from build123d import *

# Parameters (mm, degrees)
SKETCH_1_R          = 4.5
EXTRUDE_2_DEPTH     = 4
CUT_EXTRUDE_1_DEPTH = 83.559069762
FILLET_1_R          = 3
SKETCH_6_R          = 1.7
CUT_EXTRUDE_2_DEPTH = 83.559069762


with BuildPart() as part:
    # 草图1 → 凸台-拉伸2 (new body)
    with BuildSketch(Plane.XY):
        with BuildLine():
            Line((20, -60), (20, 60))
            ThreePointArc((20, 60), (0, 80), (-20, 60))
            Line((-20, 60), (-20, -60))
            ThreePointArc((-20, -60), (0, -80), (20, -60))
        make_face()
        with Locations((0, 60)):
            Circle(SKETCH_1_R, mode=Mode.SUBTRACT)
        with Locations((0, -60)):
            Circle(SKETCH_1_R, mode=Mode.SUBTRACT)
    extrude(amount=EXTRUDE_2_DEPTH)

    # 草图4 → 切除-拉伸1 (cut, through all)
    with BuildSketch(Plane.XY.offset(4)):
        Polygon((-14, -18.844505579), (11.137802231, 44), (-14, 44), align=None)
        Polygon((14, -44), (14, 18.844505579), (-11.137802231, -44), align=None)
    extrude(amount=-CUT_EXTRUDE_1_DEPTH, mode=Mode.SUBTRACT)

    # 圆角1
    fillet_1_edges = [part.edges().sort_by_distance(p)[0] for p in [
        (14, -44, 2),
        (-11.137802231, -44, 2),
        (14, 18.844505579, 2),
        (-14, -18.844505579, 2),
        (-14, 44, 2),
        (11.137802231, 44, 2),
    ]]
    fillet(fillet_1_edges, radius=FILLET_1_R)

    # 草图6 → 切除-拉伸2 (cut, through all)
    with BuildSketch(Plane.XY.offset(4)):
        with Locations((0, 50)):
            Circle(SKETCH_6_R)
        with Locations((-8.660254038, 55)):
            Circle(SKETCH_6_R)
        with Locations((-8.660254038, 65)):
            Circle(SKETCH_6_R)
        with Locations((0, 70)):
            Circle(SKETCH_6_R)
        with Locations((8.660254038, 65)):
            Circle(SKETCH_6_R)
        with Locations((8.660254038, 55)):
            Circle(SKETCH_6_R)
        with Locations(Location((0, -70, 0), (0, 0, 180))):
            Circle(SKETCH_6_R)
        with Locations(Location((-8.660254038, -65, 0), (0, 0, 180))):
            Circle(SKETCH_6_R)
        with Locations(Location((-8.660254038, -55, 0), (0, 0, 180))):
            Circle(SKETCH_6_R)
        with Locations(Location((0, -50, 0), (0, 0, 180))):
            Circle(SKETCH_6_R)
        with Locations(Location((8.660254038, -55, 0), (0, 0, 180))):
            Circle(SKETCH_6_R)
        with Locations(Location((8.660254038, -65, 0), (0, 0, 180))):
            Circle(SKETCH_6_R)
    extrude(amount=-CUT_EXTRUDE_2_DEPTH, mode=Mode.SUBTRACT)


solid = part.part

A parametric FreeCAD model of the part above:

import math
import FreeCAD as App
import Part
import Sketcher

V = App.Vector


def edges_at(feature, points):
    """Names of the edges that pass closest to the given points."""
    edges = feature.Shape.Edges
    near = lambda p: min(range(len(edges)), key=lambda i: edges[i].distToShape(Part.Vertex(*p))[0])
    return sorted({f"Edge{near(p) + 1}" for p in points})


def add_polygon(sketch, points):
    """Adds a closed chain of lines whose ends are joined by coincident constraints."""
    first, n = sketch.GeometryCount, len(points)
    for a, b in zip(points, points[1:] + points[:1]):
        sketch.addGeometry(Part.LineSegment(App.Vector(*a, 0), App.Vector(*b, 0)), False)
    for i in range(n):
        sketch.addConstraint(Sketcher.Constraint("Coincident", first + i, 2, first + (i + 1) % n, 1))

doc = App.newDocument("Part")
body = doc.addObject("PartDesign::Body", "Body")

# Sketch on XY plane
sketch1 = doc.addObject("Sketcher::SketchObject", "Sketch")
body.addObject(sketch1)
sketch1.AttachmentSupport = (doc.XY_Plane, [""])
sketch1.MapMode = "FlatFace"
sketch1.addGeometry([
    Part.LineSegment(V(20, -60, 0), V(20, 60, 0)),  # 0
    Part.ArcOfCircle(Part.Circle(V(0, 60, 0), V(0, 0, 1), 20), math.radians(0), math.radians(180)),  # 1
    Part.LineSegment(V(-20, 60, 0), V(-20, -60, 0)),  # 2
    Part.ArcOfCircle(Part.Circle(V(0, -60, 0), V(0, 0, 1), 20), math.radians(180), math.radians(360)),  # 3
    Part.Circle(V(0, -60, 0), V(0, 0, 1), 4.5),  # 4
    Part.Circle(V(0, 60, 0), V(0, 0, 1), 4.5),  # 5
], False)
sketch1.addConstraint([
    Sketcher.Constraint("Tangent", 0, 2, 1, 1),
    Sketcher.Constraint("Tangent", 1, 2, 2, 1),
    Sketcher.Constraint("Tangent", 2, 2, 3, 1),
    Sketcher.Constraint("Tangent", 3, 2, 0, 1),
    Sketcher.Constraint("Vertical", 0),
    Sketcher.Constraint("Vertical", 2),
    Sketcher.Constraint("Coincident", 4, 3, 3, 3),
    Sketcher.Constraint("Coincident", 5, 3, 1, 3),
    Sketcher.Constraint("Equal", 4, 5),
    Sketcher.Constraint("Symmetric", 1, 3, 3, 3, -1, 1),
    Sketcher.Constraint("Diameter", 4, 9.0),
    Sketcher.Constraint("Radius", 1, 20.0),
    Sketcher.Constraint("DistanceY", 0, 1, 0, 2, 120.0),
])
pad1 = doc.addObject("PartDesign::Pad", "Pad")
body.addObject(pad1)
pad1.Profile = sketch1
pad1.Length = 4

# Sketch on XY plane
sketch2 = doc.addObject("Sketcher::SketchObject", "Sketch001")
body.addObject(sketch2)
sketch2.AttachmentSupport = (doc.XY_Plane, [""])
sketch2.MapMode = "FlatFace"
sketch2.AttachmentOffset = App.Placement(V(0, 0, 4), App.Rotation())
add_polygon(sketch2, [(-14, -18.844506), (11.137802, 44), (-14, 44)])  # lines 0-2
add_polygon(sketch2, [(14, -44), (14, 18.844506), (-11.137802, -44)])  # lines 3-5
sketch2.addConstraint([
    Sketcher.Constraint("Horizontal", 1),
    Sketcher.Constraint("Vertical", 2),
    Sketcher.Constraint("Vertical", 3),
    Sketcher.Constraint("Horizontal", 5),
    Sketcher.Constraint("Symmetric", 2, 2, 3, 2, -1, 1),
    Sketcher.Constraint("Symmetric", 0, 2, 4, 2, -1, 1),
    Sketcher.Constraint("DistanceY", -1, 1, 0, 2, 44.0),
    Sketcher.Constraint("DistanceX", 1, 2, -1, 1, 14.0),
    Sketcher.Constraint("DistanceX", 1, 2, 1, 1, 25.137802),
    Sketcher.Constraint("DistanceY", 2, 2, 2, 1, 62.844506),
])
pocket1 = doc.addObject("PartDesign::Pocket", "Pocket")
body.addObject(pocket1)
pocket1.Profile = sketch2
pocket1.Type = "ThroughAll"
doc.recompute()

fillet = doc.addObject("PartDesign::Fillet", "Fillet")
body.addObject(fillet)
fillet.Base = (pocket1, edges_at(pocket1, [
    (14, -44, 2),
    (-11.138, -44, 2),
    (14, 18.845, 2),
    (-14, -18.845, 2),
    (-14, 44, 2),
    (11.138, 44, 2),
]))
fillet.Radius = 3

# Sketch on XY plane
sketch3 = doc.addObject("Sketcher::SketchObject", "Sketch002")
body.addObject(sketch3)
sketch3.AttachmentSupport = (doc.XY_Plane, [""])
sketch3.MapMode = "FlatFace"
sketch3.AttachmentOffset = App.Placement(V(0, 0, 4), App.Rotation())
sketch3.addGeometry([
    Part.Circle(V(0, 50, 0), V(0, 0, 1), 1.7),  # 0
    Part.Circle(V(-8.660254, 55, 0), V(0, 0, 1), 1.7),  # 1
    Part.Circle(V(-8.660254, 65, 0), V(0, 0, 1), 1.7),  # 2
    Part.Circle(V(0, 70, 0), V(0, 0, 1), 1.7),  # 3
    Part.Circle(V(8.660254, 65, 0), V(0, 0, 1), 1.7),  # 4
    Part.Circle(V(8.660254, 55, 0), V(0, 0, 1), 1.7),  # 5
    Part.Circle(V(0, -70, 0), V(0, 0, 1), 1.7),  # 6
    Part.Circle(V(-8.660254, -65, 0), V(0, 0, 1), 1.7),  # 7
    Part.Circle(V(-8.660254, -55, 0), V(0, 0, 1), 1.7),  # 8
    Part.Circle(V(0, -50, 0), V(0, 0, 1), 1.7),  # 9
    Part.Circle(V(8.660254, -55, 0), V(0, 0, 1), 1.7),  # 10
    Part.Circle(V(8.660254, -65, 0), V(0, 0, 1), 1.7),  # 11
], False)
sketch3.addConstraint([
    Sketcher.Constraint("Equal", 0, 1),
    Sketcher.Constraint("Equal", 1, 2),
    Sketcher.Constraint("Equal", 2, 3),
    Sketcher.Constraint("Equal", 3, 4),
    Sketcher.Constraint("Equal", 4, 5),
    Sketcher.Constraint("Equal", 5, 6),
    Sketcher.Constraint("Equal", 6, 7),
    Sketcher.Constraint("Equal", 7, 8),
    Sketcher.Constraint("Equal", 8, 9),
    Sketcher.Constraint("Equal", 9, 10),
    Sketcher.Constraint("Equal", 10, 11),
    Sketcher.Constraint("Symmetric", 3, 3, 6, 3, -1, 1),
    Sketcher.Constraint("Symmetric", 4, 3, 7, 3, -1, 1),
    Sketcher.Constraint("Symmetric", 5, 3, 8, 3, -1, 1),
    Sketcher.Constraint("Symmetric", 0, 3, 9, 3, -1, 1),
    Sketcher.Constraint("Symmetric", 1, 3, 10, 3, -1, 1),
    Sketcher.Constraint("Symmetric", 2, 3, 11, 3, -1, 1),
    Sketcher.Constraint("Symmetric", 2, 3, 4, 3, -2),
    Sketcher.Constraint("Symmetric", 1, 3, 5, 3, -2),
    Sketcher.Constraint("PointOnObject", 0, 3, -2),
    Sketcher.Constraint("PointOnObject", 3, 3, -2),
    Sketcher.Constraint("Vertical", 1, 3, 2, 3),
    Sketcher.Constraint("Diameter", 0, 3.4),
    Sketcher.Constraint("DistanceY", -1, 1, 0, 3, 50.0),
    Sketcher.Constraint("DistanceY", -1, 1, 1, 3, 55.0),
    Sketcher.Constraint("DistanceY", -1, 1, 2, 3, 65.0),
    Sketcher.Constraint("DistanceY", -1, 1, 3, 3, 70.0),
    Sketcher.Constraint("DistanceX", 2, 3, 4, 3, 17.320508),
])
pocket2 = doc.addObject("PartDesign::Pocket", "Pocket001")
body.addObject(pocket2)
pocket2.Profile = sketch3
pocket2.Type = "ThroughAll"

doc.recompute()
